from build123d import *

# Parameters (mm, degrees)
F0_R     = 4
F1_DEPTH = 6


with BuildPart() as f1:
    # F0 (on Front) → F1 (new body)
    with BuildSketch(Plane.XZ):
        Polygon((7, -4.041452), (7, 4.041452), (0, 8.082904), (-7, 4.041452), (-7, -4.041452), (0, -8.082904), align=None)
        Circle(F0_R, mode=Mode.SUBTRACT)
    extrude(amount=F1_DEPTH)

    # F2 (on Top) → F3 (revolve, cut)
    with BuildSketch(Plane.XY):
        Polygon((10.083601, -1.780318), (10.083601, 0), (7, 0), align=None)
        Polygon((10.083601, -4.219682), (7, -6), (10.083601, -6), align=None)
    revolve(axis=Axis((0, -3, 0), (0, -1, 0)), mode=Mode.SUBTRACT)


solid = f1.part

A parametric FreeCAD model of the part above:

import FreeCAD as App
import Part
import Sketcher
Q = App.Units.Quantity

doc = App.newDocument("Part")
body = doc.addObject("PartDesign::Body", "Body")

# Sketch on XZ plane
sketch1 = doc.addObject("Sketcher::SketchObject", "Sketch")
body.addObject(sketch1)
sketch1.AttachmentSupport = (doc.XZ_Plane, [""])
sketch1.MapMode = "FlatFace"
sketch1.addGeometry(Part.LineSegment(App.Vector(7, -4, 0), App.Vector(7, 4, 0)), False)
sketch1.addGeometry(Part.LineSegment(App.Vector(7, 4, 0), App.Vector(0, 8.1, 0)), False)
sketch1.addGeometry(Part.LineSegment(App.Vector(0, 8.1, 0), App.Vector(-7, 4, 0)), False)
sketch1.addGeometry(Part.LineSegment(App.Vector(-7, 4, 0), App.Vector(-7, -4, 0)), False)
sketch1.addGeometry(Part.LineSegment(App.Vector(-7, -4, 0), App.Vector(0, -8.1, 0)), False)
sketch1.addGeometry(Part.LineSegment(App.Vector(0, -8.1, 0), App.Vector(7, -4, 0)), False)
sketch1.addGeometry(Part.Circle(App.Vector(0, 0, 0), App.Vector(0, 0, 1), 4), False)
sketch1.addConstraint(Sketcher.Constraint("Coincident", 0, 2, 1, 1))
sketch1.addConstraint(Sketcher.Constraint("Coincident", 1, 2, 2, 1))
sketch1.addConstraint(Sketcher.Constraint("Coincident", 2, 2, 3, 1))
sketch1.addConstraint(Sketcher.Constraint("Coincident", 3, 2, 4, 1))
sketch1.addConstraint(Sketcher.Constraint("Coincident", 4, 2, 5, 1))
sketch1.addConstraint(Sketcher.Constraint("Coincident", 5, 2, 0, 1))
sketch1.addConstraint(Sketcher.Constraint("Vertical", 0))
sketch1.addConstraint(Sketcher.Constraint("Vertical", 3))
sketch1.addConstraint(Sketcher.Constraint("Coincident", 6, 3, -1, 1))
sketch1.addConstraint(Sketcher.Constraint("Symmetric", 0, 2, 3, 2, -1, 1))
sketch1.addConstraint(Sketcher.Constraint("Symmetric", 1, 2, 4, 2, -1, 1))
sketch1.addConstraint(Sketcher.Constraint("PointOnObject", 1, 2, -2))
sketch1.addConstraint(Sketcher.Constraint("Parallel", 2, 5))
sketch1.addConstraint(Sketcher.Constraint("Horizontal", 0, 2, 2, 2))
sketch1.addConstraint(Sketcher.Constraint("Diameter", 6, Q("8 mm")))
sketch1.addConstraint(Sketcher.Constraint("Angle", 1, Q("149.999999 deg")))
sketch1.addConstraint(Sketcher.Constraint("DistanceX", -1, 1, 0, 2, Q("7 mm")))
sketch1.addConstraint(Sketcher.Constraint("DistanceY", 0, 1, 0, 2, Q("8.082904 mm")))
pad1 = doc.addObject("PartDesign::Pad", "Pad")
body.addObject(pad1)
pad1.Profile = sketch1
pad1.Length = 6

# Sketch on XY plane
sketch2 = doc.addObject("Sketcher::SketchObject", "Sketch001")
body.addObject(sketch2)
sketch2.AttachmentSupport = (doc.XY_Plane, [""])
sketch2.MapMode = "FlatFace"
sketch2.addGeometry(Part.LineSegment(App.Vector(10.1, -1.8, 0), App.Vector(10.1, 0, 0)), False)
sketch2.addGeometry(Part.LineSegment(App.Vector(10.1, 0, 0), App.Vector(7, 0, 0)), False)
sketch2.addGeometry(Part.LineSegment(App.Vector(7, 0, 0), App.Vector(10.1, -1.8, 0)), False)
sketch2.addGeometry(Part.LineSegment(App.Vector(10.1, -4.2, 0), App.Vector(7, -6, 0)), False)
sketch2.addGeometry(Part.LineSegment(App.Vector(7, -6, 0), App.Vector(10.1, -6, 0)), False)
sketch2.addGeometry(Part.LineSegment(App.Vector(10.1, -6, 0), App.Vector(10.1, -4.2, 0)), False)
sketch2.addConstraint(Sketcher.Constraint("Coincident", 0, 2, 1, 1))
sketch2.addConstraint(Sketcher.Constraint("Coincident", 1, 2, 2, 1))
sketch2.addConstraint(Sketcher.Constraint("Coincident", 2, 2, 0, 1))
sketch2.addConstraint(Sketcher.Constraint("Coincident", 3, 2, 4, 1))
sketch2.addConstraint(Sketcher.Constraint("Coincident", 4, 2, 5, 1))
sketch2.addConstraint(Sketcher.Constraint("Coincident", 5, 2, 3, 1))
sketch2.addConstraint(Sketcher.Constraint("Vertical", 0))
sketch2.addConstraint(Sketcher.Constraint("Horizontal", 1))
sketch2.addConstraint(Sketcher.Constraint("Horizontal", 4))
sketch2.addConstraint(Sketcher.Constraint("Vertical", 5))
sketch2.addConstraint(Sketcher.Constraint("PointOnObject", 0, 2, -1))
sketch2.addConstraint(Sketcher.Constraint("Vertical", 1, 2, 3, 2))
sketch2.addConstraint(Sketcher.Constraint("Vertical", 2, 2, 4, 2))
sketch2.addConstraint(Sketcher.Constraint("Equal", 0, 5))
sketch2.addConstraint(Sketcher.Constraint("Angle", 2, Q("-30.000002 deg")))
sketch2.addConstraint(Sketcher.Constraint("DistanceX", -1, 1, 1, 2, Q("7 mm")))
sketch2.addConstraint(Sketcher.Constraint("DistanceY", 3, 2, -1, 1, Q("6 mm")))
sketch2.addConstraint(Sketcher.Constraint("DistanceX", 1, 2, 1, 1, Q("3.083601 mm")))
groove = doc.addObject("PartDesign::Groove", "Groove")
body.addObject(groove)
groove.Profile = sketch2
groove.ReferenceAxis = (sketch2, ["V_Axis"])
groove.Angle = 360

doc.recompute()
